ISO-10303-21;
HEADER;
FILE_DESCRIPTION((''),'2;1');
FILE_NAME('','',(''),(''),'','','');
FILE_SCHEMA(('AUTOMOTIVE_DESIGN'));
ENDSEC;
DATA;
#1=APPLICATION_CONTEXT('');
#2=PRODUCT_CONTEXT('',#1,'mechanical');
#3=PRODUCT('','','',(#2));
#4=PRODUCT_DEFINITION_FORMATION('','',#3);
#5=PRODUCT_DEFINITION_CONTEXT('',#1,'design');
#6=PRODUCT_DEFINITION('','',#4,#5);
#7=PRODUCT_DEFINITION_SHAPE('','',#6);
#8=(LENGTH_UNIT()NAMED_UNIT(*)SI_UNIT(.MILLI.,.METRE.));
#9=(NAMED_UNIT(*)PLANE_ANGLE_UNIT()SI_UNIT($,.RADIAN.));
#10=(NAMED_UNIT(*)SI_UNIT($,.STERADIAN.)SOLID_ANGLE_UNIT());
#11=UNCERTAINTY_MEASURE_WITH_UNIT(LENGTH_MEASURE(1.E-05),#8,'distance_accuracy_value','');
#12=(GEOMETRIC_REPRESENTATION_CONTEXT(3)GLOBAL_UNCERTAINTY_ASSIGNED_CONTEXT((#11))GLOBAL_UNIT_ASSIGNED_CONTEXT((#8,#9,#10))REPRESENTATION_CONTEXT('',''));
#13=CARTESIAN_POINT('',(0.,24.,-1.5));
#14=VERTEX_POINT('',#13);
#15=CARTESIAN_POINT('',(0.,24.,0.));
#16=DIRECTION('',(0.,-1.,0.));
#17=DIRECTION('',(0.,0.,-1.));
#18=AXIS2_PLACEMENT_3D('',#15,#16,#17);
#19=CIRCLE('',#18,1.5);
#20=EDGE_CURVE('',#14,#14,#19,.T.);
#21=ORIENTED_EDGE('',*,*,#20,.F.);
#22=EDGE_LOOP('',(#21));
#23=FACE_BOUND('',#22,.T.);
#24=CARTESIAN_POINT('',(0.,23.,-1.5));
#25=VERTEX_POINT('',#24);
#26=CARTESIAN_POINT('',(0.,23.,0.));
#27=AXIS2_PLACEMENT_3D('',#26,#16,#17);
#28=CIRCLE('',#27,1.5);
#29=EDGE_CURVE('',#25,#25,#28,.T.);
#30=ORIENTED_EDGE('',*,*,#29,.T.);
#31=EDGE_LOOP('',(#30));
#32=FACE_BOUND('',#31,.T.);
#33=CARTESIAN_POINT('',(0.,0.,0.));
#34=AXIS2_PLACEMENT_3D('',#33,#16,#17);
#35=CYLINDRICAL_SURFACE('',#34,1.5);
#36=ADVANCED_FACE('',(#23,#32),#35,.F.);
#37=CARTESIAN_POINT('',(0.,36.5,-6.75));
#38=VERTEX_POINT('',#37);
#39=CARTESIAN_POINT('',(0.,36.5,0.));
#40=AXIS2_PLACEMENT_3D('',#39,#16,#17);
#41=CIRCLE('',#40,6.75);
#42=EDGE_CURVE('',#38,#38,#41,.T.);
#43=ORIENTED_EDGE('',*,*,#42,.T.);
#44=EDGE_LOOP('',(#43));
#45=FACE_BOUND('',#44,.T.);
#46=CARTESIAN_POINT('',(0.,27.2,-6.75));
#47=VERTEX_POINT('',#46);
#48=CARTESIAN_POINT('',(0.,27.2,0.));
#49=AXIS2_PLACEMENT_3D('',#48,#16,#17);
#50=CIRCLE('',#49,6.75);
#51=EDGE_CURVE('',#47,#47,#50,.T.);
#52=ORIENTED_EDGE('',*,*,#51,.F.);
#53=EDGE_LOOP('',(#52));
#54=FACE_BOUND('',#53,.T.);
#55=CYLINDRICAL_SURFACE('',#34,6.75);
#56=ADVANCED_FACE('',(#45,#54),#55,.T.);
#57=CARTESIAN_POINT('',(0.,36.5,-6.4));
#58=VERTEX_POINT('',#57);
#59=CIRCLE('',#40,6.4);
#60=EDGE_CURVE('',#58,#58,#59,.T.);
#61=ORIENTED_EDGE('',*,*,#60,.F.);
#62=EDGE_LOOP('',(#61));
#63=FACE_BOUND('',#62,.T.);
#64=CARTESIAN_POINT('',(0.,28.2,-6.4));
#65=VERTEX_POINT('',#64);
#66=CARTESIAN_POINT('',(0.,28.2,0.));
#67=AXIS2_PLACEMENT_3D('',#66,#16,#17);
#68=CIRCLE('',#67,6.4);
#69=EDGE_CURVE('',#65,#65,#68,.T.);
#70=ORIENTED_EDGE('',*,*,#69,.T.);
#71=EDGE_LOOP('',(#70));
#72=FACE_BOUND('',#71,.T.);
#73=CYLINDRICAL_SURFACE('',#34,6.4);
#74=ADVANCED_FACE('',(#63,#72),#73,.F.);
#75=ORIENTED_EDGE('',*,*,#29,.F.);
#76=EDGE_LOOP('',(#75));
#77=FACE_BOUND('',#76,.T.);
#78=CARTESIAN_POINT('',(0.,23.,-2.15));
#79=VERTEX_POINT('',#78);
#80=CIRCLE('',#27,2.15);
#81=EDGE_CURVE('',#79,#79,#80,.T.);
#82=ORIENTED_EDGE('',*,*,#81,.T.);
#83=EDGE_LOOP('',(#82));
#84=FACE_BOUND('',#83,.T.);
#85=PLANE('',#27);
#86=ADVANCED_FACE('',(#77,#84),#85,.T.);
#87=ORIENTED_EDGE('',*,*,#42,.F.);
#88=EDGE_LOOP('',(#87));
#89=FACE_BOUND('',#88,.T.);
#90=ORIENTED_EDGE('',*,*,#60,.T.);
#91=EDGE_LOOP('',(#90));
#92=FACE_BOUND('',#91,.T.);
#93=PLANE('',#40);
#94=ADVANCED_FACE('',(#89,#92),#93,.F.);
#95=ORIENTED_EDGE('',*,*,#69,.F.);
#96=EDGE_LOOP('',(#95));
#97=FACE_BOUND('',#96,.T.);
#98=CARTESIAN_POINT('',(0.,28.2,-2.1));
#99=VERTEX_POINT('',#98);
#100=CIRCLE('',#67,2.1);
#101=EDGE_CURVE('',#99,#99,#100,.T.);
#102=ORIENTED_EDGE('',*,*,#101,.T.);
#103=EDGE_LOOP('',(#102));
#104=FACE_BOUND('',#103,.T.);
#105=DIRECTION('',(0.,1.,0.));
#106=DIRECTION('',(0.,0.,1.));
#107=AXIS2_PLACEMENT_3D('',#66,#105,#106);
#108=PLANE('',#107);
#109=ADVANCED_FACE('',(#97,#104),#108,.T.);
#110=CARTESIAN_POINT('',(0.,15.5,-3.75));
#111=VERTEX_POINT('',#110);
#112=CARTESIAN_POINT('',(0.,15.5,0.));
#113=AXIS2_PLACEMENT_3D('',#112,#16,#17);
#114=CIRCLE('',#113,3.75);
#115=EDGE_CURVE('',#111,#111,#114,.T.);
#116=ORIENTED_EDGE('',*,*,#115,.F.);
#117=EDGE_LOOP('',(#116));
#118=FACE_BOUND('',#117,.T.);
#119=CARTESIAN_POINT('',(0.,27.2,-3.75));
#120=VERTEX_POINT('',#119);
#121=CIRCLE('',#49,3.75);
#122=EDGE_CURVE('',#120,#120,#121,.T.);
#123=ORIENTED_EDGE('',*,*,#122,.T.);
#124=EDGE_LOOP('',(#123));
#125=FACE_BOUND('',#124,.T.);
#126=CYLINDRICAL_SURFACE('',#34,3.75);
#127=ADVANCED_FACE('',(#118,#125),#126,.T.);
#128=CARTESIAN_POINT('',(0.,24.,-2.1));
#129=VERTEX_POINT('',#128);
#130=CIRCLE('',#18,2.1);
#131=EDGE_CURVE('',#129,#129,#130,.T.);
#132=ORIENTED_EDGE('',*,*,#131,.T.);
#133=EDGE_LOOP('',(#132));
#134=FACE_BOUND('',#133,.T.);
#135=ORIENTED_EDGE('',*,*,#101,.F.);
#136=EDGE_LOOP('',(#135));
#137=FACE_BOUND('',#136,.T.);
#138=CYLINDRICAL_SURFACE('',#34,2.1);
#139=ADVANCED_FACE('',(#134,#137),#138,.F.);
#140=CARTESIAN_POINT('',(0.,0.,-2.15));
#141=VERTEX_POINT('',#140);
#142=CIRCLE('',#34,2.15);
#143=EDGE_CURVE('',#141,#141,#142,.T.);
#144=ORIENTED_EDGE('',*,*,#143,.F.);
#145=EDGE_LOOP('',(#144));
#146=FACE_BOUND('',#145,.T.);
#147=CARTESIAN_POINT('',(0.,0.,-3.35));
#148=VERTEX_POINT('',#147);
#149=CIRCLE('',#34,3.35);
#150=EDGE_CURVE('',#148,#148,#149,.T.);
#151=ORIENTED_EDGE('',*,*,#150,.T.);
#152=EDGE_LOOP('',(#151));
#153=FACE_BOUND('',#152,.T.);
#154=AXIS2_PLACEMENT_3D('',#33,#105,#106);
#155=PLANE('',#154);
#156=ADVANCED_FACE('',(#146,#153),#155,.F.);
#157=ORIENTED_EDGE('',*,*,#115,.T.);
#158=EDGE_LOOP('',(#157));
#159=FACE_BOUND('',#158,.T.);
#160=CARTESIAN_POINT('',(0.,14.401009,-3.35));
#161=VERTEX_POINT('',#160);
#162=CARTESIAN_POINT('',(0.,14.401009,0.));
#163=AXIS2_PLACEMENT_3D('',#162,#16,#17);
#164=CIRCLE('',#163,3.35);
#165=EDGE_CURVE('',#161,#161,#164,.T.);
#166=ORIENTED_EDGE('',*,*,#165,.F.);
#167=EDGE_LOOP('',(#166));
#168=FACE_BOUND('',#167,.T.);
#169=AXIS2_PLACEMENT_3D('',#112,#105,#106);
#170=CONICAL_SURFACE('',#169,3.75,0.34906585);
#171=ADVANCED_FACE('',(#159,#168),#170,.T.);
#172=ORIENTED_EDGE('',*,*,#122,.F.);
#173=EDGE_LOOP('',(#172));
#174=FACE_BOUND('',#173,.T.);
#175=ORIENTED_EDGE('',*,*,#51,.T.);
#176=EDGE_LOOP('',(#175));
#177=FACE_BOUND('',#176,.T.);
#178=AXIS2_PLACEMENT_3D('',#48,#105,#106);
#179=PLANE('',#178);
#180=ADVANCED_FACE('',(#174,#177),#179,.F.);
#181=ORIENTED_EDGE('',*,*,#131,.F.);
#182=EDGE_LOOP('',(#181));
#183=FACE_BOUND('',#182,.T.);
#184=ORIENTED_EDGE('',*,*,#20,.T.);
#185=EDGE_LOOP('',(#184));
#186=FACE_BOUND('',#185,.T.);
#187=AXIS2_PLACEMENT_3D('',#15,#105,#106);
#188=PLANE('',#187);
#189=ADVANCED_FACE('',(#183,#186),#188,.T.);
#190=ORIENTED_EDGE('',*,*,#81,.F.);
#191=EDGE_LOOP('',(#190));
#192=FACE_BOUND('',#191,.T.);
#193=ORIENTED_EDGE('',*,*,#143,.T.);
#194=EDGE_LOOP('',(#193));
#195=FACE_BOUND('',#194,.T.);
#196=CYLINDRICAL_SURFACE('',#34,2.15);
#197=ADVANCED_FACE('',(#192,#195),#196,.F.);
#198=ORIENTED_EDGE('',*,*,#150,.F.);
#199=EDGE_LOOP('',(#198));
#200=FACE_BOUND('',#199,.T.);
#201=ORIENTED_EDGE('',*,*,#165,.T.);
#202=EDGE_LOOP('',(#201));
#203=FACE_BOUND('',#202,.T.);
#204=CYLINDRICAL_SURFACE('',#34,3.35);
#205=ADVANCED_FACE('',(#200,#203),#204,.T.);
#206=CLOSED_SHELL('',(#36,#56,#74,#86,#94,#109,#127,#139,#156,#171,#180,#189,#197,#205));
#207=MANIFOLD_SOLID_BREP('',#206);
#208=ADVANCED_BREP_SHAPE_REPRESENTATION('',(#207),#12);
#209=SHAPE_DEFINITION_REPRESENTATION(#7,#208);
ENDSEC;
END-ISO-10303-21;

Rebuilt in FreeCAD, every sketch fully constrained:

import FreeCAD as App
import Part
import Sketcher

V = App.Vector
Q = App.Units.Quantity

doc = App.newDocument("Part")
body = doc.addObject("PartDesign::Body", "Body")

# Sketch on XY plane
sketch1 = body.newObject("Sketcher::SketchObject", "Sketch")
sketch1.AttachmentSupport = (doc.getObject("XY_Plane"), [""])
sketch1.MapMode = "FlatFace"
sketch1.addGeometry([
    Part.LineSegment(V(-3.35, 14.4, 0), V(-3.35, 0, 0)),  # 0
    Part.LineSegment(V(-3.35, 0, 0), V(-2.15, 0, 0)),  # 1
    Part.LineSegment(V(-2.15, 0, 0), V(-2.15, 23, 0)),  # 2
    Part.LineSegment(V(-2.15, 23, 0), V(-1.5, 23, 0)),  # 3
    Part.LineSegment(V(-1.5, 23, 0), V(-1.5, 24, 0)),  # 4
    Part.LineSegment(V(-1.5, 24, 0), V(-2.1, 24, 0)),  # 5
    Part.LineSegment(V(-2.1, 24, 0), V(-2.1, 28.2, 0)),  # 6
    Part.LineSegment(V(-2.1, 28.2, 0), V(-6.4, 28.2, 0)),  # 7
    Part.LineSegment(V(-6.4, 28.2, 0), V(-6.4, 36.5, 0)),  # 8
    Part.LineSegment(V(-6.4, 36.5, 0), V(-6.75, 36.5, 0)),  # 9
    Part.LineSegment(V(-6.75, 36.5, 0), V(-6.75, 27.2, 0)),  # 10
    Part.LineSegment(V(-6.75, 27.2, 0), V(-3.75, 27.2, 0)),  # 11
    Part.LineSegment(V(-3.75, 27.2, 0), V(-3.75, 15.5, 0)),  # 12
    Part.LineSegment(V(-3.75, 15.5, 0), V(-3.35, 14.4, 0)),  # 13
], False)
sketch1.addConstraint([
    Sketcher.Constraint("Coincident", 0, 2, 1, 1),
    Sketcher.Constraint("Coincident", 1, 2, 2, 1),
    Sketcher.Constraint("Coincident", 2, 2, 3, 1),
    Sketcher.Constraint("Coincident", 3, 2, 4, 1),
    Sketcher.Constraint("Coincident", 4, 2, 5, 1),
    Sketcher.Constraint("Coincident", 5, 2, 6, 1),
    Sketcher.Constraint("Coincident", 6, 2, 7, 1),
    Sketcher.Constraint("Coincident", 7, 2, 8, 1),
    Sketcher.Constraint("Coincident", 8, 2, 9, 1),
    Sketcher.Constraint("Coincident", 9, 2, 10, 1),
    Sketcher.Constraint("Coincident", 10, 2, 11, 1),
    Sketcher.Constraint("Coincident", 11, 2, 12, 1),
    Sketcher.Constraint("Coincident", 12, 2, 13, 1),
    Sketcher.Constraint("Coincident", 13, 2, 0, 1),
    Sketcher.Constraint("Vertical", 0),
    Sketcher.Constraint("Horizontal", 1),
    Sketcher.Constraint("Vertical", 2),
    Sketcher.Constraint("Horizontal", 3),
    Sketcher.Constraint("Vertical", 4),
    Sketcher.Constraint("Horizontal", 5),
    Sketcher.Constraint("Vertical", 6),
    Sketcher.Constraint("Horizontal", 7),
    Sketcher.Constraint("Vertical", 8),
    Sketcher.Constraint("Horizontal", 9),
    Sketcher.Constraint("Vertical", 10),
    Sketcher.Constraint("Horizontal", 11),
    Sketcher.Constraint("Vertical", 12),
    Sketcher.Constraint("PointOnObject", 0, 2, -1),
    Sketcher.Constraint("DistanceX", 11, 1, 11, 2, 3.0),
    Sketcher.Constraint("DistanceY", 2, 1, 2, 2, 23.0),
    Sketcher.Constraint("DistanceY", 4, 1, 4, 2, 1.0),
    Sketcher.Constraint("Angle", 13, Q("-70 deg")),
    Sketcher.Constraint("DistanceX", 1, 1, 1, 2, 1.2),
    Sketcher.Constraint("DistanceX", 5, 2, 5, 1, 0.6),
    Sketcher.Constraint("DistanceX", 7, 2, 7, 1, 4.3),
    Sketcher.Constraint("DistanceY", 6, 1, 6, 2, 4.2),
    Sketcher.Constraint("DistanceY", 8, 1, 8, 2, 8.3),
    Sketcher.Constraint("DistanceY", 10, 2, 10, 1, 9.3),
    Sketcher.Constraint("DistanceY", 12, 2, 12, 1, 11.7),
    Sketcher.Constraint("DistanceX", 3, 1, 3, 2, 0.65),
    Sketcher.Constraint("DistanceX", 9, 2, 9, 1, 0.35),
    Sketcher.Constraint("DistanceX", 3, 2, -1, 1, 1.5),
])
revolution = body.newObject("PartDesign::Revolution", "Revolution")
revolution.Profile = sketch1
revolution.ReferenceAxis = (sketch1, ["V_Axis"])
revolution.Angle = 360

doc.recompute()
